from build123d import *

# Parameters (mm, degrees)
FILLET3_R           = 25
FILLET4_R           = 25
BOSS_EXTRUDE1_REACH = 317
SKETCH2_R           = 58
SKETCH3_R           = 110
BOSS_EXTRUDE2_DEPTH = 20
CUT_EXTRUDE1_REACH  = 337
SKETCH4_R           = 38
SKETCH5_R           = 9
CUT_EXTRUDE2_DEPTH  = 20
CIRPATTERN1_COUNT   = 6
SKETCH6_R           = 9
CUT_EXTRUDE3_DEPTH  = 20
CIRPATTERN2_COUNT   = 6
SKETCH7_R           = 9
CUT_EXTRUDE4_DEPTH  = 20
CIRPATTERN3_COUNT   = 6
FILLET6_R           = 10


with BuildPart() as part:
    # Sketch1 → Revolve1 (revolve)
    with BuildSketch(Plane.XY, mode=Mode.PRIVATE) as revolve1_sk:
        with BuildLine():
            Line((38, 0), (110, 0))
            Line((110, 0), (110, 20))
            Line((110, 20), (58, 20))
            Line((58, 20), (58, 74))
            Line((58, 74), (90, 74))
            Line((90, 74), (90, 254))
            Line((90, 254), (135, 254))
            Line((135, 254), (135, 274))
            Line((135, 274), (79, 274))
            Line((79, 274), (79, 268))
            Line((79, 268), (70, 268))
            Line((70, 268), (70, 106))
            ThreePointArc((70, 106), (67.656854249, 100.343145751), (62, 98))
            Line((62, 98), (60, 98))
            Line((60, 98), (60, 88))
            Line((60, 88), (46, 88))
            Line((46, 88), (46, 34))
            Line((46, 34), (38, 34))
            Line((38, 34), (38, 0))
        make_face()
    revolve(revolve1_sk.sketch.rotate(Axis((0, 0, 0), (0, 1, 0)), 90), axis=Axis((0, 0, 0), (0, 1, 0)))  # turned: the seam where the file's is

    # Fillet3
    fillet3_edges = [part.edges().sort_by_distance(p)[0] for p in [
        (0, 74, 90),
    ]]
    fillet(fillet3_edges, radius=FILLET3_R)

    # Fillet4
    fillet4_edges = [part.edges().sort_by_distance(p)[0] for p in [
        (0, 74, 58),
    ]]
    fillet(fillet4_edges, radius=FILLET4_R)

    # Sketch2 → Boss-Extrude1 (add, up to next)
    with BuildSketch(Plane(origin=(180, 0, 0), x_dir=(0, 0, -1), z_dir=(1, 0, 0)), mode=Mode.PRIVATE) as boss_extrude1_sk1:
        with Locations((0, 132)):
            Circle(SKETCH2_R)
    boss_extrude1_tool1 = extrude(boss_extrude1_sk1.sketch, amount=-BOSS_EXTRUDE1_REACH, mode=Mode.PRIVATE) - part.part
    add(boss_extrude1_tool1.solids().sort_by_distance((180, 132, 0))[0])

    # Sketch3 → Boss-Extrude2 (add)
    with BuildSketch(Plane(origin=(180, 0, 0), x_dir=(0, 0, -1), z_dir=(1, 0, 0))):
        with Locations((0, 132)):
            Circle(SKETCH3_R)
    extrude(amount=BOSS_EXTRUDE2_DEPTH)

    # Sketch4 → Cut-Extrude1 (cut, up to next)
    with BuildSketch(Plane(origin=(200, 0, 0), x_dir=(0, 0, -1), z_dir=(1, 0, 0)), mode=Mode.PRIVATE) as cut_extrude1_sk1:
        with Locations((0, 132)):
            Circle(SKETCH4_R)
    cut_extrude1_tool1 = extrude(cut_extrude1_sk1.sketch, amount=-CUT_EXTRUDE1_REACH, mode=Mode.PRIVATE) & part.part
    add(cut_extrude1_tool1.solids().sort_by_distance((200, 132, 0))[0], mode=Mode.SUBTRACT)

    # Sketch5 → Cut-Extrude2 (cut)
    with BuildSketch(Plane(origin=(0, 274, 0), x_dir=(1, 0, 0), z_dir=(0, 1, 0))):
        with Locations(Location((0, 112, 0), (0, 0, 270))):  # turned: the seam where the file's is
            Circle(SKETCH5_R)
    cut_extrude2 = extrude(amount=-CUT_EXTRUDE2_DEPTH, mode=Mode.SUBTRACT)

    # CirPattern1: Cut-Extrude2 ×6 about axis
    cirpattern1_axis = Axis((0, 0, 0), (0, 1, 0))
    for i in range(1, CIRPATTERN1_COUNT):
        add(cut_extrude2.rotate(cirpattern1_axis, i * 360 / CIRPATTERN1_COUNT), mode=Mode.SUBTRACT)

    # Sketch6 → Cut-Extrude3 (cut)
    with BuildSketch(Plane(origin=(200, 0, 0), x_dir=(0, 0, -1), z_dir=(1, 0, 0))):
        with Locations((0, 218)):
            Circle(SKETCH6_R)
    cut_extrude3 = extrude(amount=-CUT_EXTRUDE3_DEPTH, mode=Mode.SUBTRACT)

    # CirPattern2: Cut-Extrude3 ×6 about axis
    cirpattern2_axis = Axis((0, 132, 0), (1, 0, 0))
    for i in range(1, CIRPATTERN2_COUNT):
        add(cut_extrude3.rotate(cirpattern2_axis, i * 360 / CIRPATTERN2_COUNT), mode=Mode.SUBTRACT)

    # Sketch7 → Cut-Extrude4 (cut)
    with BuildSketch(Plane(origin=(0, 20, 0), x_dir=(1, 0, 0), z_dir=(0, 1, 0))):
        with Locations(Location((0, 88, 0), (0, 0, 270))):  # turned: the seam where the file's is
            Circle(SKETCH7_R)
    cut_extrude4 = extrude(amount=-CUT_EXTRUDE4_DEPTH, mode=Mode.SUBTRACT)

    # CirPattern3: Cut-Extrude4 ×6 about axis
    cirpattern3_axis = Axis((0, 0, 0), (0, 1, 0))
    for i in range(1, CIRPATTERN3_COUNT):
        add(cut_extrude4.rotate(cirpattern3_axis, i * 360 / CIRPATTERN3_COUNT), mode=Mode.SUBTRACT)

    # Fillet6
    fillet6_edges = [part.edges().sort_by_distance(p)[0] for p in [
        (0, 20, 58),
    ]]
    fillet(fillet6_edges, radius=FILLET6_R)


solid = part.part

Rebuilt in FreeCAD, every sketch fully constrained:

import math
import FreeCAD as App
import Part
import Sketcher

V = App.Vector
Q = App.Units.Quantity


def edges_at(feature, points):
    """Names of the edges that pass closest to the given points."""
    edges = feature.Shape.Edges
    near = lambda p: min(range(len(edges)), key=lambda i: edges[i].distToShape(Part.Vertex(*p))[0])
    return sorted({f"Edge{near(p) + 1}" for p in points})

doc = App.newDocument("Part")
body = doc.addObject("PartDesign::Body", "Body")

sketch1 = doc.addObject("Sketcher::SketchObject", "Sketch")
body.addObject(sketch1)
sketch1.AttachmentSupport = (doc.XY_Plane, [""])
sketch1.MapMode = "FlatFace"
sketch1.addGeometry([
    Part.LineSegment(V(38, 0, 0), V(110, 0, 0)),
    Part.LineSegment(V(110, 0, 0), V(110, 20, 0)),
    Part.LineSegment(V(110, 20, 0), V(58, 20, 0)),
    Part.LineSegment(V(58, 20, 0), V(58, 74, 0)),
    Part.LineSegment(V(58, 74, 0), V(90, 74, 0)),
    Part.LineSegment(V(90, 74, 0), V(90, 254, 0)),
    Part.LineSegment(V(90, 254, 0), V(135, 254, 0)),
    Part.LineSegment(V(135, 254, 0), V(135, 274, 0)),
    Part.LineSegment(V(135, 274, 0), V(79, 274, 0)),
    Part.LineSegment(V(79, 274, 0), V(79, 268, 0)),
    Part.LineSegment(V(79, 268, 0), V(70, 268, 0)),
    Part.LineSegment(V(70, 268, 0), V(70, 106, 0)),
    Part.ArcOfCircle(Part.Circle(V(62, 106, 0), V(0, 0, 1), 8), math.radians(-90), math.radians(0)),
    Part.LineSegment(V(62, 98, 0), V(60, 98, 0)),
    Part.LineSegment(V(60, 98, 0), V(60, 88, 0)),
    Part.LineSegment(V(60, 88, 0), V(46, 88, 0)),
    Part.LineSegment(V(46, 88, 0), V(46, 34, 0)),
    Part.LineSegment(V(46, 34, 0), V(38, 34, 0)),
    Part.LineSegment(V(38, 34, 0), V(38, 0, 0)),
], False)
sketch1.addConstraint([
    Sketcher.Constraint("Coincident", 0, 2, 1, 1),
    Sketcher.Constraint("Coincident", 1, 2, 2, 1),
    Sketcher.Constraint("Coincident", 2, 2, 3, 1),
    Sketcher.Constraint("Coincident", 3, 2, 4, 1),
    Sketcher.Constraint("Coincident", 4, 2, 5, 1),
    Sketcher.Constraint("Coincident", 5, 2, 6, 1),
    Sketcher.Constraint("Coincident", 6, 2, 7, 1),
    Sketcher.Constraint("Coincident", 7, 2, 8, 1),
    Sketcher.Constraint("Coincident", 8, 2, 9, 1),
    Sketcher.Constraint("Coincident", 9, 2, 10, 1),
    Sketcher.Constraint("Coincident", 10, 2, 11, 1),
    Sketcher.Constraint("Tangent", 11, 2, 12, 2),
    Sketcher.Constraint("Tangent", 12, 1, 13, 1),
    Sketcher.Constraint("Coincident", 13, 2, 14, 1),
    Sketcher.Constraint("Coincident", 14, 2, 15, 1),
    Sketcher.Constraint("Coincident", 15, 2, 16, 1),
    Sketcher.Constraint("Coincident", 16, 2, 17, 1),
    Sketcher.Constraint("Coincident", 17, 2, 18, 1),
    Sketcher.Constraint("Coincident", 18, 2, 0, 1),
    Sketcher.Constraint("Horizontal", 0),
    Sketcher.Constraint("Vertical", 1),
    Sketcher.Constraint("Horizontal", 2),
    Sketcher.Constraint("Vertical", 3),
    Sketcher.Constraint("Horizontal", 4),
    Sketcher.Constraint("Vertical", 5),
    Sketcher.Constraint("Horizontal", 6),
    Sketcher.Constraint("Vertical", 7),
    Sketcher.Constraint("Horizontal", 8),
    Sketcher.Constraint("Vertical", 9),
    Sketcher.Constraint("Horizontal", 10),
    Sketcher.Constraint("Vertical", 11),
    Sketcher.Constraint("Horizontal", 13),
    Sketcher.Constraint("Vertical", 14),
    Sketcher.Constraint("Horizontal", 15),
    Sketcher.Constraint("Vertical", 16),
    Sketcher.Constraint("Horizontal", 17),
    Sketcher.Constraint("Vertical", 18),
    Sketcher.Constraint("PointOnObject", 0, 2, -1),
    Sketcher.Constraint("Equal", 1, 7),
    Sketcher.Constraint("Equal", 3, 16),
    Sketcher.Constraint("Radius", 12, Q("8 mm")),
    Sketcher.Constraint("DistanceX", 0, 1, 0, 2, Q("72 mm")),
    Sketcher.Constraint("DistanceX", 2, 2, 2, 1, Q("52 mm")),
    Sketcher.Constraint("DistanceX", 4, 1, 4, 2, Q("32 mm")),
    Sketcher.Constraint("DistanceX", 6, 1, 6, 2, Q("45 mm")),
    Sketcher.Constraint("DistanceX", 8, 2, 8, 1, Q("56 mm")),
    Sketcher.Constraint("DistanceX", 10, 2, 10, 1, Q("9 mm")),
    Sketcher.Constraint("DistanceX", 13, 2, 13, 1, Q("2 mm")),
    Sketcher.Constraint("DistanceX", 15, 2, 15, 1, Q("14 mm")),
    Sketcher.Constraint("DistanceY", 1, 1, 1, 2, Q("20 mm")),
    Sketcher.Constraint("DistanceY", 3, 1, 3, 2, Q("54 mm")),
    Sketcher.Constraint("DistanceY", 5, 1, 5, 2, Q("180 mm")),
    Sketcher.Constraint("DistanceY", 9, 2, 9, 1, Q("6 mm")),
    Sketcher.Constraint("DistanceY", 11, 2, 11, 1, Q("162 mm")),
    Sketcher.Constraint("DistanceY", 14, 2, 14, 1, Q("10 mm")),
    Sketcher.Constraint("DistanceX", -1, 1, 12, 3, Q("62 mm")),
])
revolution = doc.addObject("PartDesign::Revolution", "Revolution")
body.addObject(revolution)
revolution.Profile = sketch1
revolution.ReferenceAxis = (sketch1, ["V_Axis"])
revolution.Angle = 360
doc.recompute()

fillet = doc.addObject("PartDesign::Fillet", "Fillet")
body.addObject(fillet)
fillet.Base = (revolution, edges_at(revolution, [(0, 74, 90)]))
fillet.Radius = 25
doc.recompute()

fillet2 = doc.addObject("PartDesign::Fillet", "Fillet001")
body.addObject(fillet2)
fillet2.Base = (fillet, edges_at(fillet, [(0, 74, 58)]))
fillet2.Radius = 25

sketch2 = doc.addObject("Sketcher::SketchObject", "Sketch001")
body.addObject(sketch2)
sketch2.AttachmentSupport = (doc.YZ_Plane, [""])
sketch2.MapMode = "FlatFace"
sketch2.AttachmentOffset = App.Placement(V(0, 0, 180), App.Rotation())
sketch2.addGeometry(Part.Circle(V(132, 0, 0), V(0, 0, 1), 58), False)
sketch2.addConstraint([
    Sketcher.Constraint("PointOnObject", 0, 3, -1),
    Sketcher.Constraint("Diameter", 0, Q("116 mm")),
    Sketcher.Constraint("DistanceX", -1, 1, 0, 3, Q("132 mm")),
])
pad1 = doc.addObject("PartDesign::Pad", "Pad")
body.addObject(pad1)
pad1.Profile = sketch2
pad1.Type = "UpToFirst"
pad1.Reversed = True

sketch3 = doc.addObject("Sketcher::SketchObject", "Sketch002")
body.addObject(sketch3)
sketch3.AttachmentSupport = (doc.YZ_Plane, [""])
sketch3.MapMode = "FlatFace"
sketch3.AttachmentOffset = App.Placement(V(0, 0, 180), App.Rotation())
sketch3.addGeometry(Part.Circle(V(132, 0, 0), V(0, 0, 1), 110), False)
sketch3.addConstraint([
    Sketcher.Constraint("PointOnObject", 0, 3, -1),
    Sketcher.Constraint("Diameter", 0, Q("220 mm")),
    Sketcher.Constraint("DistanceX", -1, 1, 0, 3, Q("132 mm")),
])
pad2 = doc.addObject("PartDesign::Pad", "Pad001")
body.addObject(pad2)
pad2.Profile = sketch3
pad2.Length = 20

sketch4 = doc.addObject("Sketcher::SketchObject", "Sketch003")
body.addObject(sketch4)
sketch4.AttachmentSupport = (doc.YZ_Plane, [""])
sketch4.MapMode = "FlatFace"
sketch4.AttachmentOffset = App.Placement(V(0, 0, 200), App.Rotation())
sketch4.addGeometry(Part.Circle(V(132, 0, 0), V(0, 0, 1), 38), False)
sketch4.addConstraint([
    Sketcher.Constraint("PointOnObject", 0, 3, -1),
    Sketcher.Constraint("Diameter", 0, Q("76 mm")),
    Sketcher.Constraint("DistanceX", -1, 1, 0, 3, Q("132 mm")),
])
pocket1 = doc.addObject("PartDesign::Pocket", "Pocket")
body.addObject(pocket1)
pocket1.Profile = sketch4
pocket1.Length = 142.450022

sketch5 = doc.addObject("Sketcher::SketchObject", "Sketch004")
body.addObject(sketch5)
sketch5.AttachmentSupport = (doc.XZ_Plane, [""])
sketch5.MapMode = "FlatFace"
sketch5.AttachmentOffset = App.Placement(V(0, 0, -274), App.Rotation())
sketch5.addGeometry(Part.Circle(V(0, -112, 0), V(0, 0, 1), 9), False)
sketch5.addConstraint([
    Sketcher.Constraint("PointOnObject", 0, 3, -2),
    Sketcher.Constraint("Diameter", 0, Q("18 mm")),
    Sketcher.Constraint("DistanceY", 0, 3, -1, 1, Q("112 mm")),
])
pocket2 = doc.addObject("PartDesign::Pocket", "Pocket001")
body.addObject(pocket2)
pocket2.Profile = sketch5
pocket2.Length = 20
pocket2.Reversed = True
doc.recompute()

polarpattern = doc.addObject("PartDesign::PolarPattern", "PolarPattern")
body.addObject(polarpattern)
polarpattern.Originals = [pocket2]
polarpattern.Axis = (doc.Y_Axis, [""])
polarpattern.Angle = 360
polarpattern.Occurrences = 6
body.Tip = polarpattern

sketch6 = doc.addObject("Sketcher::SketchObject", "Sketch005")
body.addObject(sketch6)
sketch6.AttachmentSupport = (doc.YZ_Plane, [""])
sketch6.MapMode = "FlatFace"
sketch6.AttachmentOffset = App.Placement(V(0, 0, 200), App.Rotation())
sketch6.addGeometry(Part.Circle(V(218, 0, 0), V(0, 0, 1), 9), False)
sketch6.addConstraint([
    Sketcher.Constraint("PointOnObject", 0, 3, -1),
    Sketcher.Constraint("Diameter", 0, Q("18 mm")),
    Sketcher.Constraint("DistanceX", -1, 1, 0, 3, Q("218 mm")),
])
pocket3 = doc.addObject("PartDesign::Pocket", "Pocket002")
body.addObject(pocket3)
pocket3.Profile = sketch6
pocket3.Length = 20
doc.recompute()

datumline = doc.addObject("PartDesign::Line", "DatumLine")
body.addObject(datumline)
datumline.Placement = App.Placement(V(0, 132, 0), App.Rotation(V(0, 0, 1), V(1, 0, 0)))
polarpattern2 = doc.addObject("PartDesign::PolarPattern", "PolarPattern001")
body.addObject(polarpattern2)
polarpattern2.Originals = [pocket3]
polarpattern2.Axis = (datumline, [""])
polarpattern2.Angle = 360
polarpattern2.Occurrences = 6
body.Tip = polarpattern2

sketch7 = doc.addObject("Sketcher::SketchObject", "Sketch006")
body.addObject(sketch7)
sketch7.AttachmentSupport = (doc.XZ_Plane, [""])
sketch7.MapMode = "FlatFace"
sketch7.AttachmentOffset = App.Placement(V(0, 0, -20), App.Rotation())
sketch7.addGeometry(Part.Circle(V(0, -88, 0), V(0, 0, 1), 9), False)
sketch7.addConstraint([
    Sketcher.Constraint("PointOnObject", 0, 3, -2),
    Sketcher.Constraint("Diameter", 0, Q("18 mm")),
    Sketcher.Constraint("DistanceY", 0, 3, -1, 1, Q("88 mm")),
])
pocket4 = doc.addObject("PartDesign::Pocket", "Pocket003")
body.addObject(pocket4)
pocket4.Profile = sketch7
pocket4.Length = 20
pocket4.Reversed = True
doc.recompute()

polarpattern3 = doc.addObject("PartDesign::PolarPattern", "PolarPattern002")
body.addObject(polarpattern3)
polarpattern3.Originals = [pocket4]
polarpattern3.Axis = (doc.Y_Axis, [""])
polarpattern3.Angle = 360
polarpattern3.Occurrences = 6
body.Tip = polarpattern3
doc.recompute()

fillet3 = doc.addObject("PartDesign::Fillet", "Fillet002")
body.addObject(fillet3)
fillet3.Base = (polarpattern3, edges_at(polarpattern3, [(0, 20, 58)]))
fillet3.Radius = 10

doc.recompute()
